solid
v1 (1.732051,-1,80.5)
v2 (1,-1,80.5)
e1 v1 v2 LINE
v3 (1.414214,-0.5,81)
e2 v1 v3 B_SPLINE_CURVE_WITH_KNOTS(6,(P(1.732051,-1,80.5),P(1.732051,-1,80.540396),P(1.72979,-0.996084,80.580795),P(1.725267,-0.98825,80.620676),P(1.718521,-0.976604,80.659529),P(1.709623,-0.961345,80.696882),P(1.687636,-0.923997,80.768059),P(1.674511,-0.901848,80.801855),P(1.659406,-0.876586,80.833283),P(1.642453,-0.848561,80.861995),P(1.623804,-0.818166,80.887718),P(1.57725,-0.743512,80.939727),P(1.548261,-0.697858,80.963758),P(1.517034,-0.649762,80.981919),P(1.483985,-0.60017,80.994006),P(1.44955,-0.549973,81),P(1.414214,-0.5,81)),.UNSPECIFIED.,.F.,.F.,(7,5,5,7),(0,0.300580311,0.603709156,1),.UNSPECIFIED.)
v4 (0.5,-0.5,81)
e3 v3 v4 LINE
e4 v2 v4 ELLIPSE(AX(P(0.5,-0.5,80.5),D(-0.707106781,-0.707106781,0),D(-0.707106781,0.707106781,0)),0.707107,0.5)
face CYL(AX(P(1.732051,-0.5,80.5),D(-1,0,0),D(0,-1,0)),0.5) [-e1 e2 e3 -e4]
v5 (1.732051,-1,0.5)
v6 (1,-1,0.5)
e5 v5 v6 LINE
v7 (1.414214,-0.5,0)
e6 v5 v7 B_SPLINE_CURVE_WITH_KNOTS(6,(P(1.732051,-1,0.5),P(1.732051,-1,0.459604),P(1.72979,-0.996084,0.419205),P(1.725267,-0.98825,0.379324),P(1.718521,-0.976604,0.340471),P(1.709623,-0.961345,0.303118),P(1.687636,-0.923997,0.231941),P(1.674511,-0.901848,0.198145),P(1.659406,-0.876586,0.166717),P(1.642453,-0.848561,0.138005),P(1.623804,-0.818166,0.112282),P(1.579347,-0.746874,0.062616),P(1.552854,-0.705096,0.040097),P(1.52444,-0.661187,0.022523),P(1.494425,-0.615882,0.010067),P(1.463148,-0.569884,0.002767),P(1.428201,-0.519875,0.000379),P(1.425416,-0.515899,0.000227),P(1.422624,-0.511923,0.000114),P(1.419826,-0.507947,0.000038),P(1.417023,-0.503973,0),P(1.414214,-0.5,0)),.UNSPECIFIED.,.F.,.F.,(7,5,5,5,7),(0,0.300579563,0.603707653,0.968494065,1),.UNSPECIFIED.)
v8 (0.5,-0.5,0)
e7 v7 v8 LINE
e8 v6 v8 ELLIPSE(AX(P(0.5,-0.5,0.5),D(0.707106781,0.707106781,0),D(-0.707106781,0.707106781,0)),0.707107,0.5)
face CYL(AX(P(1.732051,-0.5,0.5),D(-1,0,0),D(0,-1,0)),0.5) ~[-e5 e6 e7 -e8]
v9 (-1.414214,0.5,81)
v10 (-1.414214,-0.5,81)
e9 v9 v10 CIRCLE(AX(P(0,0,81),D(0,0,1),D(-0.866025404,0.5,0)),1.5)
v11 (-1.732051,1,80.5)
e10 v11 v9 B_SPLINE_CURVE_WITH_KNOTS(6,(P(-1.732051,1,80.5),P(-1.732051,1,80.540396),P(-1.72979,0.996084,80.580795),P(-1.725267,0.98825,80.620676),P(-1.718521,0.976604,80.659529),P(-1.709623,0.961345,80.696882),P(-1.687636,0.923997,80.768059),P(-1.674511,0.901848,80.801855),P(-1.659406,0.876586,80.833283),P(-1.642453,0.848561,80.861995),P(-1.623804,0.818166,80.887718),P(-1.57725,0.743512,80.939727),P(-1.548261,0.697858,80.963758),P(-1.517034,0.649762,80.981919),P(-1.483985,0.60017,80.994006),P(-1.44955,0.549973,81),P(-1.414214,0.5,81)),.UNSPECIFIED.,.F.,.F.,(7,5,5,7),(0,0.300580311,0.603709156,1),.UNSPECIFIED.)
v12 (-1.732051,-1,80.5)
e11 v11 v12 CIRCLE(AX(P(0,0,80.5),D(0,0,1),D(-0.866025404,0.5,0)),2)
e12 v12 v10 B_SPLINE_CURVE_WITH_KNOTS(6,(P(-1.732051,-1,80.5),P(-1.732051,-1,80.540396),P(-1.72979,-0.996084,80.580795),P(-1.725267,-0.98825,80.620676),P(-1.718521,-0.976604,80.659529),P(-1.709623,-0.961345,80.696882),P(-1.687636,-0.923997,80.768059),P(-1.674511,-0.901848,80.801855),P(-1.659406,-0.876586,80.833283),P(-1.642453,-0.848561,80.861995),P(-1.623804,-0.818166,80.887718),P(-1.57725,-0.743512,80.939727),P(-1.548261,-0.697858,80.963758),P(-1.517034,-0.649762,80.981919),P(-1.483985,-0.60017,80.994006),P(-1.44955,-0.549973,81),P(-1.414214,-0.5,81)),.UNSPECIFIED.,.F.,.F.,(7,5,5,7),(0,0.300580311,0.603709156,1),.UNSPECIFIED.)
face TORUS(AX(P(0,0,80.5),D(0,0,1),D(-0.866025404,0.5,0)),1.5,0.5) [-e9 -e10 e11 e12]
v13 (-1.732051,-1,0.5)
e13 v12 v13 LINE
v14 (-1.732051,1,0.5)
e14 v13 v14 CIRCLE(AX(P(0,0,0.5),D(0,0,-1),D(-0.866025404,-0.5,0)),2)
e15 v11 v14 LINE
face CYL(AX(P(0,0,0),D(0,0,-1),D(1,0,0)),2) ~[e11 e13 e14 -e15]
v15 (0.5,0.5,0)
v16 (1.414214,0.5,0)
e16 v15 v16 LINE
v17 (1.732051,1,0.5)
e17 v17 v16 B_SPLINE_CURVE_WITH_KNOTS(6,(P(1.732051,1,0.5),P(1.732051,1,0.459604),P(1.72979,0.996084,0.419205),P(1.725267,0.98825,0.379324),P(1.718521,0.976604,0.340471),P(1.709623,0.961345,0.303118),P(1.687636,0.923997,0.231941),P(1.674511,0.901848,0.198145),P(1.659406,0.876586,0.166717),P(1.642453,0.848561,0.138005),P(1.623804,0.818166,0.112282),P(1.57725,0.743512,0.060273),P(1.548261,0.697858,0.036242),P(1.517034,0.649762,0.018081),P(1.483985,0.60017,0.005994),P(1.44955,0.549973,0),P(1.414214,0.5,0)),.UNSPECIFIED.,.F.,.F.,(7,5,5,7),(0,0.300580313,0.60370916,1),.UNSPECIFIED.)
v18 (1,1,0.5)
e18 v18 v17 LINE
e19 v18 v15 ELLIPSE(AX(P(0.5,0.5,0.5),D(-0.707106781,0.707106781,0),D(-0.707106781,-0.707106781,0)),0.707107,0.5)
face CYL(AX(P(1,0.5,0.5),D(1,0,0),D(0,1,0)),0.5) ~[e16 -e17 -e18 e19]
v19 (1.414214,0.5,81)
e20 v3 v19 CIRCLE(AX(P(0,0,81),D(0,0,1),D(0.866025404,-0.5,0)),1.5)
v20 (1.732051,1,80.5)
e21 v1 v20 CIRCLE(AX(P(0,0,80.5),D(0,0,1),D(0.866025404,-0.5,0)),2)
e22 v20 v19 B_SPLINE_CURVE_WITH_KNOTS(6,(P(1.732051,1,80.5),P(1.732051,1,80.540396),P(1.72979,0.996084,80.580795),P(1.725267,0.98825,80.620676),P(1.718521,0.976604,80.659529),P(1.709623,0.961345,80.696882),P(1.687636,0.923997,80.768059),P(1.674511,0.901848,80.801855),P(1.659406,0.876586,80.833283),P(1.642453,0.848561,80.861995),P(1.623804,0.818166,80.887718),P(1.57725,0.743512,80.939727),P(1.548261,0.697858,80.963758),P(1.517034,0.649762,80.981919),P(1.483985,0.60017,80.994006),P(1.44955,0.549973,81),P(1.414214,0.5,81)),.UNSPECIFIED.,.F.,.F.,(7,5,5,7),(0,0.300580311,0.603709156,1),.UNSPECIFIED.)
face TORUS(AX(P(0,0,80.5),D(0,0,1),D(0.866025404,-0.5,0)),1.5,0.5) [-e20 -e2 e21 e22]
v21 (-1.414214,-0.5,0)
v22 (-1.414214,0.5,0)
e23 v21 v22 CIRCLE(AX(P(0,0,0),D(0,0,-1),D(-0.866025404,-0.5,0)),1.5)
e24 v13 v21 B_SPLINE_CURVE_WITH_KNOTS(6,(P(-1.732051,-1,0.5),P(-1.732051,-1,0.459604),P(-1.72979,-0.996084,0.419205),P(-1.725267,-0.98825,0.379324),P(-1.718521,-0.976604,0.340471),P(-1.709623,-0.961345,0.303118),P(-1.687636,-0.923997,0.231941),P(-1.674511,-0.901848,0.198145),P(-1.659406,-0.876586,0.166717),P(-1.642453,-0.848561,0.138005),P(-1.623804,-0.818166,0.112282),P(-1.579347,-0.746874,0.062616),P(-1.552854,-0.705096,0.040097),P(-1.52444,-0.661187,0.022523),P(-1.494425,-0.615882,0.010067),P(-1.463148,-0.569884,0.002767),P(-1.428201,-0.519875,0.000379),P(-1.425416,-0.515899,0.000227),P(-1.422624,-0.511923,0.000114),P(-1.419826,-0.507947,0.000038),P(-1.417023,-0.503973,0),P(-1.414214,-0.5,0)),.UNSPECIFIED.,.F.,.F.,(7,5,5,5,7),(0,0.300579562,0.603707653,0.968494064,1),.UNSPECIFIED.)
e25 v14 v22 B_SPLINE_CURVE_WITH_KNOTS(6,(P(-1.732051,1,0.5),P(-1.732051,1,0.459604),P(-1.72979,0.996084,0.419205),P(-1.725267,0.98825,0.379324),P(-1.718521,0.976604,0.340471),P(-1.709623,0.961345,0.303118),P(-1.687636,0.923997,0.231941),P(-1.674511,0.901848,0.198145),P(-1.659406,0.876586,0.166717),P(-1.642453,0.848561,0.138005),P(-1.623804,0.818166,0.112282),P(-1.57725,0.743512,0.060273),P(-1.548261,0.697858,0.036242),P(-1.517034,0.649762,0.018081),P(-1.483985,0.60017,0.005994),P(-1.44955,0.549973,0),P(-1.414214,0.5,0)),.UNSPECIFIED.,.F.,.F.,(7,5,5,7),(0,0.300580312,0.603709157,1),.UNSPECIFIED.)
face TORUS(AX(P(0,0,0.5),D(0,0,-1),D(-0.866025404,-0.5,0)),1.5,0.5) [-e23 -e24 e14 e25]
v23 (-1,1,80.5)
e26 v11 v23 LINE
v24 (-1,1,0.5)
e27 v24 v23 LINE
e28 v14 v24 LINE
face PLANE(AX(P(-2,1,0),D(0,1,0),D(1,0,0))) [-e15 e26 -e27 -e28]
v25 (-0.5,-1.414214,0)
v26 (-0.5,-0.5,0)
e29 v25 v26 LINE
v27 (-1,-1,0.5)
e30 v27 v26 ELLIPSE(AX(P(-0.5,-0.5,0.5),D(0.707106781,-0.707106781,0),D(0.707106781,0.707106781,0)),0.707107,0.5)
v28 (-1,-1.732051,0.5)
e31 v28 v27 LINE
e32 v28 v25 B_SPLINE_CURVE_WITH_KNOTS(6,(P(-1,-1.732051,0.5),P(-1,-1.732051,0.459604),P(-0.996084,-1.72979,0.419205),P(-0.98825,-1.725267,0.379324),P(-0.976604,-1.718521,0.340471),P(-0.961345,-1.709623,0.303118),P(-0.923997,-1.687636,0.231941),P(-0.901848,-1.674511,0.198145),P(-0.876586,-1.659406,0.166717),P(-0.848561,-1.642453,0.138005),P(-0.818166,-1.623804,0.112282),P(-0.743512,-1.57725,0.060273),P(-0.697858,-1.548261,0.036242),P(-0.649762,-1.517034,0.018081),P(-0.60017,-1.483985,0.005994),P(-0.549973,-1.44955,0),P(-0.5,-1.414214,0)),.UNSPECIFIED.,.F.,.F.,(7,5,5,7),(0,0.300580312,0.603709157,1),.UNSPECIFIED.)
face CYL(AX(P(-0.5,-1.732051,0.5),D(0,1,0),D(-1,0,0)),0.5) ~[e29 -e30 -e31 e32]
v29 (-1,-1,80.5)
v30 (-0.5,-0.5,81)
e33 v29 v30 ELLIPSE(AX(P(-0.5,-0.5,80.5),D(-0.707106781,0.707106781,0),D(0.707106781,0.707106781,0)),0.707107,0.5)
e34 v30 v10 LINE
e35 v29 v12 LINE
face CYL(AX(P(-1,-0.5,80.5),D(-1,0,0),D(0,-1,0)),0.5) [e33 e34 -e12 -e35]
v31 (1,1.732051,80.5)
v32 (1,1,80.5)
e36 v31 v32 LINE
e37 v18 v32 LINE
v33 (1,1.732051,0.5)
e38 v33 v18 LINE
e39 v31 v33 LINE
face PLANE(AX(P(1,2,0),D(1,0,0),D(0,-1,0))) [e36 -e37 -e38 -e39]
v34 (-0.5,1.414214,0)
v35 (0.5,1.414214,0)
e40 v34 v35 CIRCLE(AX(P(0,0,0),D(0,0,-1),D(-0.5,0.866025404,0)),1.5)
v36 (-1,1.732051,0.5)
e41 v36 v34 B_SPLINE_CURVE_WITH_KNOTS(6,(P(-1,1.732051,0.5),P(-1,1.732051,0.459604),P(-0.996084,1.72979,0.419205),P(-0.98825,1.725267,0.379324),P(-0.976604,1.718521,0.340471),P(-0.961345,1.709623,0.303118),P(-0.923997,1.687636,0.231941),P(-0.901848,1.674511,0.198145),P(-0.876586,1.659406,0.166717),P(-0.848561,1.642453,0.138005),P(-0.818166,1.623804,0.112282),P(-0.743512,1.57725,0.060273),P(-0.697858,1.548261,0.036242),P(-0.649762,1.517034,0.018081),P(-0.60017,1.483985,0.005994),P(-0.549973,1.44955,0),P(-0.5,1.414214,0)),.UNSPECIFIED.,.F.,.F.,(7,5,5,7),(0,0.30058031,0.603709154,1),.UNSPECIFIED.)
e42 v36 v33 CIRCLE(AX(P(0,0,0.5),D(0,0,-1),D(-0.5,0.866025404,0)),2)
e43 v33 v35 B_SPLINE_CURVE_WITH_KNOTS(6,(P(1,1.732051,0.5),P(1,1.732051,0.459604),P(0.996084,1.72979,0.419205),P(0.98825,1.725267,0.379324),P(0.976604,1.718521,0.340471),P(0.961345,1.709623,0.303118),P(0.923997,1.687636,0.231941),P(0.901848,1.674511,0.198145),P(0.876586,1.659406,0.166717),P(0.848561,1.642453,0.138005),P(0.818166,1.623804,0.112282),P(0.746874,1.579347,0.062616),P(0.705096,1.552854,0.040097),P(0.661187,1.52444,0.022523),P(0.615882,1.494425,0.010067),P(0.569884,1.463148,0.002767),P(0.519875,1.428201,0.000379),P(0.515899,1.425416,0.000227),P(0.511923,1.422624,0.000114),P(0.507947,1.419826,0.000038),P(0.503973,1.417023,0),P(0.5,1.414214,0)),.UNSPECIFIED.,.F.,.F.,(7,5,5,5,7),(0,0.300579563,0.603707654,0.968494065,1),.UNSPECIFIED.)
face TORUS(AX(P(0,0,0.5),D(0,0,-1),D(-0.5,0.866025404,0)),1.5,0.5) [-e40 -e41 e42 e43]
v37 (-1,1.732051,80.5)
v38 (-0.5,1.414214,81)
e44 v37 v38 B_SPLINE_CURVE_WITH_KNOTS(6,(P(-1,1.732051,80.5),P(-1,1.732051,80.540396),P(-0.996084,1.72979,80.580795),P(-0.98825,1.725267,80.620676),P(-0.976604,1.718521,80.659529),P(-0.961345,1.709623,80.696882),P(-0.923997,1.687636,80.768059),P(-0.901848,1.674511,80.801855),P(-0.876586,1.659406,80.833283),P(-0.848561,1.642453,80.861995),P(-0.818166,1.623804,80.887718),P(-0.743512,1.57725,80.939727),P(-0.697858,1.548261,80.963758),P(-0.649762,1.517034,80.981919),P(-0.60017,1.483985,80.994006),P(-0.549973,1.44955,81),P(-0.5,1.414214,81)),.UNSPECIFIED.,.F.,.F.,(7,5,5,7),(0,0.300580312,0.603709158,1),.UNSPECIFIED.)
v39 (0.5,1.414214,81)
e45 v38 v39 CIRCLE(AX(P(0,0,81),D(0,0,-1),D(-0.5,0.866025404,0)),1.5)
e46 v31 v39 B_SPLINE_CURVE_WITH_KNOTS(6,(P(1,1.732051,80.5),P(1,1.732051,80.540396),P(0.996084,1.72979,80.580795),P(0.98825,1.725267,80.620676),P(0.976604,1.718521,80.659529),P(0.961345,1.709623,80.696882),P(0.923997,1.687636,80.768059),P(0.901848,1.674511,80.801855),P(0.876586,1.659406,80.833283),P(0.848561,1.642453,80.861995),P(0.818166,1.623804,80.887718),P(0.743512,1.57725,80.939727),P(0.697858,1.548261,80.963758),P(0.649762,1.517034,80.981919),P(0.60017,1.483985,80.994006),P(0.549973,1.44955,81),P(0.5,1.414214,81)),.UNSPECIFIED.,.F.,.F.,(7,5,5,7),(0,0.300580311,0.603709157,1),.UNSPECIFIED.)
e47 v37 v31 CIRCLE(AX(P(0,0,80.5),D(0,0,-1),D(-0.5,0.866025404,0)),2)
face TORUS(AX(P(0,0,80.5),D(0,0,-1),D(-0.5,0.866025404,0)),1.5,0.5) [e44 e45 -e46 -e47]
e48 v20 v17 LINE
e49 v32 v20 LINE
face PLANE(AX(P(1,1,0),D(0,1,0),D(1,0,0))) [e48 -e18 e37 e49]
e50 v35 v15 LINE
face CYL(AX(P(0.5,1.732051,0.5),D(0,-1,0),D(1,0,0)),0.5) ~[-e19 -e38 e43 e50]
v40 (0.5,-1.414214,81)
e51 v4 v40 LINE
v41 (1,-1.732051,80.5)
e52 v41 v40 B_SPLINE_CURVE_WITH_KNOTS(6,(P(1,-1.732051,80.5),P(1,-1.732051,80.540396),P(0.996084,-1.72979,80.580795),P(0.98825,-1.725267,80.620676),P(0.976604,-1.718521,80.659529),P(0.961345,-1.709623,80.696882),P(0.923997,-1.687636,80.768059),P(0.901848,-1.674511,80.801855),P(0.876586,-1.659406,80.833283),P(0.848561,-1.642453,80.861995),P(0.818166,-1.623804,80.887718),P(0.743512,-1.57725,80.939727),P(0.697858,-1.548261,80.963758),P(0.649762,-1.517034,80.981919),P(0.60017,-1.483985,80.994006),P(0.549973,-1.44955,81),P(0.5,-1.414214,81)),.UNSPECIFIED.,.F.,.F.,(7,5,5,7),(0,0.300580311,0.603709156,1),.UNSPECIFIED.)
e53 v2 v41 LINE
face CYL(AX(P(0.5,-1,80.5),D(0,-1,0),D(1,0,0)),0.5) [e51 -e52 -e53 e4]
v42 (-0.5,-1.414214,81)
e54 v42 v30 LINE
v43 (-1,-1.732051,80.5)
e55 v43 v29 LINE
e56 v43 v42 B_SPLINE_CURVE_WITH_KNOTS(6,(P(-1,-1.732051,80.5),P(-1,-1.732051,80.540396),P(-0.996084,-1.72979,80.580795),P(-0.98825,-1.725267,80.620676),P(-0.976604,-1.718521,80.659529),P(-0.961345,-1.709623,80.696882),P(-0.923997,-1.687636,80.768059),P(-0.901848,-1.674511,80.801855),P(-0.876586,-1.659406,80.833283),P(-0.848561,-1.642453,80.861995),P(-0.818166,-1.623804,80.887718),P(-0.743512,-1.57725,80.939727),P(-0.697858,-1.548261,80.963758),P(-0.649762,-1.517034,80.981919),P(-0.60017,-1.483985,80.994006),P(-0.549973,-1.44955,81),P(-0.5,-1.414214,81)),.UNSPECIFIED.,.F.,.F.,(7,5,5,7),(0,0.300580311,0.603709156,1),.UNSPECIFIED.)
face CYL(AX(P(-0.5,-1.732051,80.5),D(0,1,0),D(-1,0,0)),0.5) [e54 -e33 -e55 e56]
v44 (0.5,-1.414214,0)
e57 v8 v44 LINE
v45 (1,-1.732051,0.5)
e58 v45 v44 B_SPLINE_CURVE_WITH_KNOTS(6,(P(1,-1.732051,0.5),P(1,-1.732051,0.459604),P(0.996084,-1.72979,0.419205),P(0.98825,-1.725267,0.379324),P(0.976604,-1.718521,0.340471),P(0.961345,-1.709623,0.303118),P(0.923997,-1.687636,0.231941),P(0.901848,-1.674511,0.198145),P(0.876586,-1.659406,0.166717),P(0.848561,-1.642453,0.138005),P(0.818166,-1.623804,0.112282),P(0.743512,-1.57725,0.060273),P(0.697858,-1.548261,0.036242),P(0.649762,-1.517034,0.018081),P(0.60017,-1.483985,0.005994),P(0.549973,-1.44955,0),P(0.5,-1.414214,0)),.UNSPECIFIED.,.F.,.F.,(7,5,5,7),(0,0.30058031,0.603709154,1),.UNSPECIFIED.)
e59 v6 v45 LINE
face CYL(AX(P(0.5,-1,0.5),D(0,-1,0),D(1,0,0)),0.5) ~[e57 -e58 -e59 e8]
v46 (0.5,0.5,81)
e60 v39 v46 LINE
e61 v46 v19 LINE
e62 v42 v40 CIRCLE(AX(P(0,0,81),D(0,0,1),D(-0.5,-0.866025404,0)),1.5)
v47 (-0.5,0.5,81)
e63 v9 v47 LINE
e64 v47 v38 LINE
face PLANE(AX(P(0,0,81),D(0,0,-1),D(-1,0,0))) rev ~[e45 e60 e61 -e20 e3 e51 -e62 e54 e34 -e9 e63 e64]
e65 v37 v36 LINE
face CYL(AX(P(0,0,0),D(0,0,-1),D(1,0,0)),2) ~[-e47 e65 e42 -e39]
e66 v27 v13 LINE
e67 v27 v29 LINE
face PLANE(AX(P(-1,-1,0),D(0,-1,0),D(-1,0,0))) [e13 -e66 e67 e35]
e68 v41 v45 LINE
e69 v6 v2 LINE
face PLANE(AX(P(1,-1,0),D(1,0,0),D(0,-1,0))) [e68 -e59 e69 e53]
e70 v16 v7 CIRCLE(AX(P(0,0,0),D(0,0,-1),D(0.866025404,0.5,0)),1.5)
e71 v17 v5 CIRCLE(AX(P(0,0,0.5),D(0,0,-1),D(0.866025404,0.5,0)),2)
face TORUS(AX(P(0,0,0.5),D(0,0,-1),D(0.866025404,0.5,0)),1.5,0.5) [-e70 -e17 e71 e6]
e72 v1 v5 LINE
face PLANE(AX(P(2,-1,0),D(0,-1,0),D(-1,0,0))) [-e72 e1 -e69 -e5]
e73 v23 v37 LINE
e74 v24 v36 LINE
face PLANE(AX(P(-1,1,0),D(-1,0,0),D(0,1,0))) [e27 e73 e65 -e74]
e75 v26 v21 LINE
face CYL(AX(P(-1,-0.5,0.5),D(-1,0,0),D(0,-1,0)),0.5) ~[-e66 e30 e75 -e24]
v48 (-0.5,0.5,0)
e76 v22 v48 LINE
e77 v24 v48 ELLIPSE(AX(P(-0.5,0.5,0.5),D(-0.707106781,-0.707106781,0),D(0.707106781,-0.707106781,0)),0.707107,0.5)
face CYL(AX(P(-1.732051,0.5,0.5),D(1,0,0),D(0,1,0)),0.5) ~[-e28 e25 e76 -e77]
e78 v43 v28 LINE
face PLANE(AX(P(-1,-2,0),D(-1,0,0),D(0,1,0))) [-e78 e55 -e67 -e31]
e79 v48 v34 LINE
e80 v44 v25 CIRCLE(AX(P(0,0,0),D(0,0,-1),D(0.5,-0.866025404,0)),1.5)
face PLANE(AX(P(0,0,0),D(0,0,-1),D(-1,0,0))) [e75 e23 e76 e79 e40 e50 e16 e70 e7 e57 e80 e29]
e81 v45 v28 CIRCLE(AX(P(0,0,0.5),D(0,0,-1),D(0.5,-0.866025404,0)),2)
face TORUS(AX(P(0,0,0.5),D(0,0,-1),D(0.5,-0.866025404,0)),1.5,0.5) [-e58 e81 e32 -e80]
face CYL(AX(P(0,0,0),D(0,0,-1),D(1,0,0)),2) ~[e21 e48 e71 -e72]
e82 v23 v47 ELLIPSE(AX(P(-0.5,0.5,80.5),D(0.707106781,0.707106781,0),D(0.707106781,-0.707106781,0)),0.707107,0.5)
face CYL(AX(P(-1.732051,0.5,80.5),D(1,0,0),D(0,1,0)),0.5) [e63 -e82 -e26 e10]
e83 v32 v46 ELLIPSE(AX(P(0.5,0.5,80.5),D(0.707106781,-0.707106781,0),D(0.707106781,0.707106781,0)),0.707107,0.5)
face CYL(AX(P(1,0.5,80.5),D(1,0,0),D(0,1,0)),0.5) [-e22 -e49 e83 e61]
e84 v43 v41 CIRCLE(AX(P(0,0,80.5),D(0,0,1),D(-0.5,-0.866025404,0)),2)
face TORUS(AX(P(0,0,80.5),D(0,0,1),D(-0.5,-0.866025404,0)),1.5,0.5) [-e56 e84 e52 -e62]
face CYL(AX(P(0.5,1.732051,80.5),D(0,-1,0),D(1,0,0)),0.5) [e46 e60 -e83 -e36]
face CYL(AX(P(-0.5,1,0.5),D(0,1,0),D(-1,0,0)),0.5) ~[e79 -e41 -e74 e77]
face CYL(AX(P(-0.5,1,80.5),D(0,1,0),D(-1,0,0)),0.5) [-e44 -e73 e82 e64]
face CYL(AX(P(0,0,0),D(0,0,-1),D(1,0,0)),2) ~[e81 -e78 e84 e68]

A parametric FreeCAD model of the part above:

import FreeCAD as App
import Part
import Sketcher
from FreeCAD import Vector


def edges_at(feature, points):
    """Names of the edges that pass closest to the given points."""
    edges = feature.Shape.Edges
    near = lambda p: min(range(len(edges)), key=lambda i: edges[i].distToShape(Part.Vertex(*p))[0])
    return sorted({f"Edge{near(p) + 1}" for p in points})


def add_polygon(sketch, points):
    """Adds a closed chain of lines whose ends are joined by coincident constraints."""
    first, n = sketch.GeometryCount, len(points)
    for a, b in zip(points, points[1:] + points[:1]):
        sketch.addGeometry(Part.LineSegment(App.Vector(*a, 0), App.Vector(*b, 0)), False)
    for i in range(n):
        sketch.addConstraint(Sketcher.Constraint("Coincident", first + i, 2, first + (i + 1) % n, 1))

doc = App.newDocument("Part")
body = doc.addObject("PartDesign::Body", "Body")

# Sketch on XY plane
sketch1 = doc.addObject("Sketcher::SketchObject", "Sketch")
body.addObject(sketch1)
sketch1.AttachmentSupport = (doc.XY_Plane, [""])
sketch1.MapMode = "FlatFace"
add_polygon(sketch1, [(-1, 2), (-1, 1), (-2, 1), (-2, -1), (-1, -1), (-1, -2), (1, -2), (1, -1), (2, -1), (2, 1), (1, 1), (1, 2)])  # lines 0-11
sketch1.addConstraint([
    Sketcher.Constraint("Vertical", 0),
    Sketcher.Constraint("Horizontal", 1),
    Sketcher.Constraint("Vertical", 2),
    Sketcher.Constraint("Horizontal", 3),
    Sketcher.Constraint("Vertical", 4),
    Sketcher.Constraint("Horizontal", 5),
    Sketcher.Constraint("Vertical", 6),
    Sketcher.Constraint("Horizontal", 7),
    Sketcher.Constraint("Vertical", 8),
    Sketcher.Constraint("Horizontal", 9),
    Sketcher.Constraint("Vertical", 10),
    Sketcher.Constraint("Horizontal", 11),
    Sketcher.Constraint("Symmetric", 0, 2, 6, 2, -1, 1),
    Sketcher.Constraint("Symmetric", 2, 2, 8, 2, -1, 1),
    Sketcher.Constraint("Symmetric", 4, 2, 10, 2, -1, 1),
    Sketcher.Constraint("Symmetric", 3, 2, 6, 2, -2),
    Sketcher.Constraint("Equal", 9, 0),
    Sketcher.Constraint("Equal", 11, 2),
    Sketcher.Constraint("DistanceX", 1, 2, 1, 1, 1.0),
    Sketcher.Constraint("DistanceX", 5, 1, 5, 2, 2.0),
])
pad1 = doc.addObject("PartDesign::Pad", "Pad")
body.addObject(pad1)
pad1.Profile = sketch1
pad1.Length = 81

# Sketch on XY plane
sketch2 = doc.addObject("Sketcher::SketchObject", "Sketch001")
body.addObject(sketch2)
sketch2.AttachmentSupport = (doc.XY_Plane, [""])
sketch2.MapMode = "FlatFace"
add_polygon(sketch2, [(-11.1, 11.1), (-11.1, -11.1), (11.1, -11.1), (11.1, 11.1)])  # lines 0-3
sketch2.addGeometry(Part.Circle(Vector(0, 0, 0), Vector(0, 0, 1), 2), False)  # 4
sketch2.addConstraint([
    Sketcher.Constraint("Vertical", 0),
    Sketcher.Constraint("Horizontal", 1),
    Sketcher.Constraint("Vertical", 2),
    Sketcher.Constraint("Horizontal", 3),
    Sketcher.Constraint("Coincident", 4, 3, -1, 1),
    Sketcher.Constraint("Symmetric", 0, 2, 2, 2, -1, 1),
    Sketcher.Constraint("Equal", 3, 0),
    Sketcher.Constraint("Diameter", 4, 4.0),
    Sketcher.Constraint("DistanceX", 1, 1, 1, 2, 22.24),
])
pocket1 = doc.addObject("PartDesign::Pocket", "Pocket")
body.addObject(pocket1)
pocket1.Profile = sketch2
pocket1.Type = "ThroughAll"
pocket1.Reversed = True
doc.recompute()

fillet = doc.addObject("PartDesign::Fillet", "Fillet")
body.addObject(fillet)
fillet.Base = (pocket1, edges_at(pocket1, [
    (1.366, -1, 0),
    (-1, -1.366, 0),
    (-1.366, 1, 0),
    (1, 1.366, 0),
    (-1.366, 1, 81),
    (-1, -1.366, 81),
    (1.366, 1, 0),
    (1, -1.366, 0),
    (-1.366, -1, 0),
    (-1, 1.366, 0),
    (-2, 0, 0),
    (0, 2, 0),
    (2, 0, 0),
    (0, -2, 0),
    (1.366, -1, 81),
    (-1, 1.366, 81),
    (-1.366, -1, 81),
    (1, -1.366, 81),
    (1.366, 1, 81),
    (1, 1.366, 81),
    (0, 2, 81),
    (-2, 0, 81),
    (0, -2, 81),
    (2, 0, 81),
]))
fillet.Radius = 0.5

doc.recompute()
